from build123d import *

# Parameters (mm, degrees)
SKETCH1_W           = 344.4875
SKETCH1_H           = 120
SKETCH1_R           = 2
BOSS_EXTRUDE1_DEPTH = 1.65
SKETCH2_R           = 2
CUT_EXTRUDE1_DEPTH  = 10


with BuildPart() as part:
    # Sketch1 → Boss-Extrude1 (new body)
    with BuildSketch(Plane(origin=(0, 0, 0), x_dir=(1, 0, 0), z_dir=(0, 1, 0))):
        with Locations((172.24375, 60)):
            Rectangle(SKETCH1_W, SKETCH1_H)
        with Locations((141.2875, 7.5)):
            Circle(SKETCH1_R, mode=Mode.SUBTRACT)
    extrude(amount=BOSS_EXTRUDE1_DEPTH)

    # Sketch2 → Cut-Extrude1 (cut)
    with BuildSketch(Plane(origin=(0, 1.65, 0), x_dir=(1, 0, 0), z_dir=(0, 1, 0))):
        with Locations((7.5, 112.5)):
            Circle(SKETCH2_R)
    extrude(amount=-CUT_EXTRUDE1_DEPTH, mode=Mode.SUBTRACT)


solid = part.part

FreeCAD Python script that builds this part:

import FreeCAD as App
import Part
import Sketcher
from FreeCAD import Vector


def add_polygon(sketch, points):
    """Adds a closed chain of lines whose ends are joined by coincident constraints."""
    first, n = sketch.GeometryCount, len(points)
    for a, b in zip(points, points[1:] + points[:1]):
        sketch.addGeometry(Part.LineSegment(App.Vector(*a, 0), App.Vector(*b, 0)), False)
    for i in range(n):
        sketch.addConstraint(Sketcher.Constraint("Coincident", first + i, 2, first + (i + 1) % n, 1))

doc = App.newDocument("Part")
params = doc.addObject("Spreadsheet::Sheet", "Params")
for row, (alias, value) in enumerate([
    ("sketch1_diameter", "4 mm"),
    ("sketch1_height", "120 mm"),
    ("pad1_length", "1.65 mm"),
    ("sketch2_diameter", "4 mm"),
    ("pocket1_length", "10 mm"),
], start=1):
    params.set(f"A{row}", alias)
    params.set(f"B{row}", "=" + value)
    params.setAlias(f"B{row}", alias)

body = doc.addObject("PartDesign::Body", "Body")

sketch1 = doc.addObject("Sketcher::SketchObject", "Sketch")
body.addObject(sketch1)
sketch1.AttachmentSupport = (doc.XZ_Plane, [""])
sketch1.MapMode = "FlatFace"
add_polygon(sketch1, [(0, -120), (0, 0), (344.5, 0), (344.5, -120)])
sketch1.addGeometry(Part.Circle(Vector(141.3, -7.5, 0), Vector(0, 0, 1), 2), False)
sketch1.addConstraint(Sketcher.Constraint("Vertical", 0))
sketch1.addConstraint(Sketcher.Constraint("Horizontal", 1))
sketch1.addConstraint(Sketcher.Constraint("Vertical", 2))
sketch1.addConstraint(Sketcher.Constraint("Horizontal", 3))
sketch1.addConstraint(Sketcher.Constraint("Coincident", 0, 2, -1, 1))
sketch1.addConstraint(Sketcher.Constraint("Diameter", 4, 4.0))
sketch1.addConstraint(Sketcher.Constraint("DistanceY", 0, 1, 0, 2, 120.0))
sketch1.addConstraint(Sketcher.Constraint("DistanceY", 4, 3, -1, 1, 7.5))
sketch1.addConstraint(Sketcher.Constraint("DistanceX", 4, 3, 1, 2, 203.2))
sketch1.addConstraint(Sketcher.Constraint("DistanceX", 1, 1, 1, 2, 344.4875))
sketch1.setExpression("Constraints[9]", "Params.sketch1_diameter")
sketch1.setExpression("Constraints[10]", "Params.sketch1_height")
pad1 = doc.addObject("PartDesign::Pad", "Pad")
body.addObject(pad1)
pad1.Profile = sketch1
pad1.setExpression("Length", "Params.pad1_length")
pad1.Reversed = True

sketch2 = doc.addObject("Sketcher::SketchObject", "Sketch001")
body.addObject(sketch2)
sketch2.AttachmentSupport = (doc.XZ_Plane, [""])
sketch2.MapMode = "FlatFace"
sketch2.AttachmentOffset = App.Placement(Vector(0, 0, -1.65), App.Rotation())
sketch2.addGeometry(Part.Circle(Vector(7.5, -112.5, 0), Vector(0, 0, 1), 2), False)
sketch2.addConstraint(Sketcher.Constraint("Diameter", 0, 4.0))
sketch2.addConstraint(Sketcher.Constraint("DistanceX", -1, 1, 0, 3, 7.5))
sketch2.addConstraint(Sketcher.Constraint("DistanceY", 0, 3, -1, 1, 112.5))
sketch2.setExpression("Constraints[0]", "Params.sketch2_diameter")
pocket1 = doc.addObject("PartDesign::Pocket", "Pocket")
body.addObject(pocket1)
pocket1.Profile = sketch2
pocket1.setExpression("Length", "Params.pocket1_length")
pocket1.Reversed = True

doc.recompute()
